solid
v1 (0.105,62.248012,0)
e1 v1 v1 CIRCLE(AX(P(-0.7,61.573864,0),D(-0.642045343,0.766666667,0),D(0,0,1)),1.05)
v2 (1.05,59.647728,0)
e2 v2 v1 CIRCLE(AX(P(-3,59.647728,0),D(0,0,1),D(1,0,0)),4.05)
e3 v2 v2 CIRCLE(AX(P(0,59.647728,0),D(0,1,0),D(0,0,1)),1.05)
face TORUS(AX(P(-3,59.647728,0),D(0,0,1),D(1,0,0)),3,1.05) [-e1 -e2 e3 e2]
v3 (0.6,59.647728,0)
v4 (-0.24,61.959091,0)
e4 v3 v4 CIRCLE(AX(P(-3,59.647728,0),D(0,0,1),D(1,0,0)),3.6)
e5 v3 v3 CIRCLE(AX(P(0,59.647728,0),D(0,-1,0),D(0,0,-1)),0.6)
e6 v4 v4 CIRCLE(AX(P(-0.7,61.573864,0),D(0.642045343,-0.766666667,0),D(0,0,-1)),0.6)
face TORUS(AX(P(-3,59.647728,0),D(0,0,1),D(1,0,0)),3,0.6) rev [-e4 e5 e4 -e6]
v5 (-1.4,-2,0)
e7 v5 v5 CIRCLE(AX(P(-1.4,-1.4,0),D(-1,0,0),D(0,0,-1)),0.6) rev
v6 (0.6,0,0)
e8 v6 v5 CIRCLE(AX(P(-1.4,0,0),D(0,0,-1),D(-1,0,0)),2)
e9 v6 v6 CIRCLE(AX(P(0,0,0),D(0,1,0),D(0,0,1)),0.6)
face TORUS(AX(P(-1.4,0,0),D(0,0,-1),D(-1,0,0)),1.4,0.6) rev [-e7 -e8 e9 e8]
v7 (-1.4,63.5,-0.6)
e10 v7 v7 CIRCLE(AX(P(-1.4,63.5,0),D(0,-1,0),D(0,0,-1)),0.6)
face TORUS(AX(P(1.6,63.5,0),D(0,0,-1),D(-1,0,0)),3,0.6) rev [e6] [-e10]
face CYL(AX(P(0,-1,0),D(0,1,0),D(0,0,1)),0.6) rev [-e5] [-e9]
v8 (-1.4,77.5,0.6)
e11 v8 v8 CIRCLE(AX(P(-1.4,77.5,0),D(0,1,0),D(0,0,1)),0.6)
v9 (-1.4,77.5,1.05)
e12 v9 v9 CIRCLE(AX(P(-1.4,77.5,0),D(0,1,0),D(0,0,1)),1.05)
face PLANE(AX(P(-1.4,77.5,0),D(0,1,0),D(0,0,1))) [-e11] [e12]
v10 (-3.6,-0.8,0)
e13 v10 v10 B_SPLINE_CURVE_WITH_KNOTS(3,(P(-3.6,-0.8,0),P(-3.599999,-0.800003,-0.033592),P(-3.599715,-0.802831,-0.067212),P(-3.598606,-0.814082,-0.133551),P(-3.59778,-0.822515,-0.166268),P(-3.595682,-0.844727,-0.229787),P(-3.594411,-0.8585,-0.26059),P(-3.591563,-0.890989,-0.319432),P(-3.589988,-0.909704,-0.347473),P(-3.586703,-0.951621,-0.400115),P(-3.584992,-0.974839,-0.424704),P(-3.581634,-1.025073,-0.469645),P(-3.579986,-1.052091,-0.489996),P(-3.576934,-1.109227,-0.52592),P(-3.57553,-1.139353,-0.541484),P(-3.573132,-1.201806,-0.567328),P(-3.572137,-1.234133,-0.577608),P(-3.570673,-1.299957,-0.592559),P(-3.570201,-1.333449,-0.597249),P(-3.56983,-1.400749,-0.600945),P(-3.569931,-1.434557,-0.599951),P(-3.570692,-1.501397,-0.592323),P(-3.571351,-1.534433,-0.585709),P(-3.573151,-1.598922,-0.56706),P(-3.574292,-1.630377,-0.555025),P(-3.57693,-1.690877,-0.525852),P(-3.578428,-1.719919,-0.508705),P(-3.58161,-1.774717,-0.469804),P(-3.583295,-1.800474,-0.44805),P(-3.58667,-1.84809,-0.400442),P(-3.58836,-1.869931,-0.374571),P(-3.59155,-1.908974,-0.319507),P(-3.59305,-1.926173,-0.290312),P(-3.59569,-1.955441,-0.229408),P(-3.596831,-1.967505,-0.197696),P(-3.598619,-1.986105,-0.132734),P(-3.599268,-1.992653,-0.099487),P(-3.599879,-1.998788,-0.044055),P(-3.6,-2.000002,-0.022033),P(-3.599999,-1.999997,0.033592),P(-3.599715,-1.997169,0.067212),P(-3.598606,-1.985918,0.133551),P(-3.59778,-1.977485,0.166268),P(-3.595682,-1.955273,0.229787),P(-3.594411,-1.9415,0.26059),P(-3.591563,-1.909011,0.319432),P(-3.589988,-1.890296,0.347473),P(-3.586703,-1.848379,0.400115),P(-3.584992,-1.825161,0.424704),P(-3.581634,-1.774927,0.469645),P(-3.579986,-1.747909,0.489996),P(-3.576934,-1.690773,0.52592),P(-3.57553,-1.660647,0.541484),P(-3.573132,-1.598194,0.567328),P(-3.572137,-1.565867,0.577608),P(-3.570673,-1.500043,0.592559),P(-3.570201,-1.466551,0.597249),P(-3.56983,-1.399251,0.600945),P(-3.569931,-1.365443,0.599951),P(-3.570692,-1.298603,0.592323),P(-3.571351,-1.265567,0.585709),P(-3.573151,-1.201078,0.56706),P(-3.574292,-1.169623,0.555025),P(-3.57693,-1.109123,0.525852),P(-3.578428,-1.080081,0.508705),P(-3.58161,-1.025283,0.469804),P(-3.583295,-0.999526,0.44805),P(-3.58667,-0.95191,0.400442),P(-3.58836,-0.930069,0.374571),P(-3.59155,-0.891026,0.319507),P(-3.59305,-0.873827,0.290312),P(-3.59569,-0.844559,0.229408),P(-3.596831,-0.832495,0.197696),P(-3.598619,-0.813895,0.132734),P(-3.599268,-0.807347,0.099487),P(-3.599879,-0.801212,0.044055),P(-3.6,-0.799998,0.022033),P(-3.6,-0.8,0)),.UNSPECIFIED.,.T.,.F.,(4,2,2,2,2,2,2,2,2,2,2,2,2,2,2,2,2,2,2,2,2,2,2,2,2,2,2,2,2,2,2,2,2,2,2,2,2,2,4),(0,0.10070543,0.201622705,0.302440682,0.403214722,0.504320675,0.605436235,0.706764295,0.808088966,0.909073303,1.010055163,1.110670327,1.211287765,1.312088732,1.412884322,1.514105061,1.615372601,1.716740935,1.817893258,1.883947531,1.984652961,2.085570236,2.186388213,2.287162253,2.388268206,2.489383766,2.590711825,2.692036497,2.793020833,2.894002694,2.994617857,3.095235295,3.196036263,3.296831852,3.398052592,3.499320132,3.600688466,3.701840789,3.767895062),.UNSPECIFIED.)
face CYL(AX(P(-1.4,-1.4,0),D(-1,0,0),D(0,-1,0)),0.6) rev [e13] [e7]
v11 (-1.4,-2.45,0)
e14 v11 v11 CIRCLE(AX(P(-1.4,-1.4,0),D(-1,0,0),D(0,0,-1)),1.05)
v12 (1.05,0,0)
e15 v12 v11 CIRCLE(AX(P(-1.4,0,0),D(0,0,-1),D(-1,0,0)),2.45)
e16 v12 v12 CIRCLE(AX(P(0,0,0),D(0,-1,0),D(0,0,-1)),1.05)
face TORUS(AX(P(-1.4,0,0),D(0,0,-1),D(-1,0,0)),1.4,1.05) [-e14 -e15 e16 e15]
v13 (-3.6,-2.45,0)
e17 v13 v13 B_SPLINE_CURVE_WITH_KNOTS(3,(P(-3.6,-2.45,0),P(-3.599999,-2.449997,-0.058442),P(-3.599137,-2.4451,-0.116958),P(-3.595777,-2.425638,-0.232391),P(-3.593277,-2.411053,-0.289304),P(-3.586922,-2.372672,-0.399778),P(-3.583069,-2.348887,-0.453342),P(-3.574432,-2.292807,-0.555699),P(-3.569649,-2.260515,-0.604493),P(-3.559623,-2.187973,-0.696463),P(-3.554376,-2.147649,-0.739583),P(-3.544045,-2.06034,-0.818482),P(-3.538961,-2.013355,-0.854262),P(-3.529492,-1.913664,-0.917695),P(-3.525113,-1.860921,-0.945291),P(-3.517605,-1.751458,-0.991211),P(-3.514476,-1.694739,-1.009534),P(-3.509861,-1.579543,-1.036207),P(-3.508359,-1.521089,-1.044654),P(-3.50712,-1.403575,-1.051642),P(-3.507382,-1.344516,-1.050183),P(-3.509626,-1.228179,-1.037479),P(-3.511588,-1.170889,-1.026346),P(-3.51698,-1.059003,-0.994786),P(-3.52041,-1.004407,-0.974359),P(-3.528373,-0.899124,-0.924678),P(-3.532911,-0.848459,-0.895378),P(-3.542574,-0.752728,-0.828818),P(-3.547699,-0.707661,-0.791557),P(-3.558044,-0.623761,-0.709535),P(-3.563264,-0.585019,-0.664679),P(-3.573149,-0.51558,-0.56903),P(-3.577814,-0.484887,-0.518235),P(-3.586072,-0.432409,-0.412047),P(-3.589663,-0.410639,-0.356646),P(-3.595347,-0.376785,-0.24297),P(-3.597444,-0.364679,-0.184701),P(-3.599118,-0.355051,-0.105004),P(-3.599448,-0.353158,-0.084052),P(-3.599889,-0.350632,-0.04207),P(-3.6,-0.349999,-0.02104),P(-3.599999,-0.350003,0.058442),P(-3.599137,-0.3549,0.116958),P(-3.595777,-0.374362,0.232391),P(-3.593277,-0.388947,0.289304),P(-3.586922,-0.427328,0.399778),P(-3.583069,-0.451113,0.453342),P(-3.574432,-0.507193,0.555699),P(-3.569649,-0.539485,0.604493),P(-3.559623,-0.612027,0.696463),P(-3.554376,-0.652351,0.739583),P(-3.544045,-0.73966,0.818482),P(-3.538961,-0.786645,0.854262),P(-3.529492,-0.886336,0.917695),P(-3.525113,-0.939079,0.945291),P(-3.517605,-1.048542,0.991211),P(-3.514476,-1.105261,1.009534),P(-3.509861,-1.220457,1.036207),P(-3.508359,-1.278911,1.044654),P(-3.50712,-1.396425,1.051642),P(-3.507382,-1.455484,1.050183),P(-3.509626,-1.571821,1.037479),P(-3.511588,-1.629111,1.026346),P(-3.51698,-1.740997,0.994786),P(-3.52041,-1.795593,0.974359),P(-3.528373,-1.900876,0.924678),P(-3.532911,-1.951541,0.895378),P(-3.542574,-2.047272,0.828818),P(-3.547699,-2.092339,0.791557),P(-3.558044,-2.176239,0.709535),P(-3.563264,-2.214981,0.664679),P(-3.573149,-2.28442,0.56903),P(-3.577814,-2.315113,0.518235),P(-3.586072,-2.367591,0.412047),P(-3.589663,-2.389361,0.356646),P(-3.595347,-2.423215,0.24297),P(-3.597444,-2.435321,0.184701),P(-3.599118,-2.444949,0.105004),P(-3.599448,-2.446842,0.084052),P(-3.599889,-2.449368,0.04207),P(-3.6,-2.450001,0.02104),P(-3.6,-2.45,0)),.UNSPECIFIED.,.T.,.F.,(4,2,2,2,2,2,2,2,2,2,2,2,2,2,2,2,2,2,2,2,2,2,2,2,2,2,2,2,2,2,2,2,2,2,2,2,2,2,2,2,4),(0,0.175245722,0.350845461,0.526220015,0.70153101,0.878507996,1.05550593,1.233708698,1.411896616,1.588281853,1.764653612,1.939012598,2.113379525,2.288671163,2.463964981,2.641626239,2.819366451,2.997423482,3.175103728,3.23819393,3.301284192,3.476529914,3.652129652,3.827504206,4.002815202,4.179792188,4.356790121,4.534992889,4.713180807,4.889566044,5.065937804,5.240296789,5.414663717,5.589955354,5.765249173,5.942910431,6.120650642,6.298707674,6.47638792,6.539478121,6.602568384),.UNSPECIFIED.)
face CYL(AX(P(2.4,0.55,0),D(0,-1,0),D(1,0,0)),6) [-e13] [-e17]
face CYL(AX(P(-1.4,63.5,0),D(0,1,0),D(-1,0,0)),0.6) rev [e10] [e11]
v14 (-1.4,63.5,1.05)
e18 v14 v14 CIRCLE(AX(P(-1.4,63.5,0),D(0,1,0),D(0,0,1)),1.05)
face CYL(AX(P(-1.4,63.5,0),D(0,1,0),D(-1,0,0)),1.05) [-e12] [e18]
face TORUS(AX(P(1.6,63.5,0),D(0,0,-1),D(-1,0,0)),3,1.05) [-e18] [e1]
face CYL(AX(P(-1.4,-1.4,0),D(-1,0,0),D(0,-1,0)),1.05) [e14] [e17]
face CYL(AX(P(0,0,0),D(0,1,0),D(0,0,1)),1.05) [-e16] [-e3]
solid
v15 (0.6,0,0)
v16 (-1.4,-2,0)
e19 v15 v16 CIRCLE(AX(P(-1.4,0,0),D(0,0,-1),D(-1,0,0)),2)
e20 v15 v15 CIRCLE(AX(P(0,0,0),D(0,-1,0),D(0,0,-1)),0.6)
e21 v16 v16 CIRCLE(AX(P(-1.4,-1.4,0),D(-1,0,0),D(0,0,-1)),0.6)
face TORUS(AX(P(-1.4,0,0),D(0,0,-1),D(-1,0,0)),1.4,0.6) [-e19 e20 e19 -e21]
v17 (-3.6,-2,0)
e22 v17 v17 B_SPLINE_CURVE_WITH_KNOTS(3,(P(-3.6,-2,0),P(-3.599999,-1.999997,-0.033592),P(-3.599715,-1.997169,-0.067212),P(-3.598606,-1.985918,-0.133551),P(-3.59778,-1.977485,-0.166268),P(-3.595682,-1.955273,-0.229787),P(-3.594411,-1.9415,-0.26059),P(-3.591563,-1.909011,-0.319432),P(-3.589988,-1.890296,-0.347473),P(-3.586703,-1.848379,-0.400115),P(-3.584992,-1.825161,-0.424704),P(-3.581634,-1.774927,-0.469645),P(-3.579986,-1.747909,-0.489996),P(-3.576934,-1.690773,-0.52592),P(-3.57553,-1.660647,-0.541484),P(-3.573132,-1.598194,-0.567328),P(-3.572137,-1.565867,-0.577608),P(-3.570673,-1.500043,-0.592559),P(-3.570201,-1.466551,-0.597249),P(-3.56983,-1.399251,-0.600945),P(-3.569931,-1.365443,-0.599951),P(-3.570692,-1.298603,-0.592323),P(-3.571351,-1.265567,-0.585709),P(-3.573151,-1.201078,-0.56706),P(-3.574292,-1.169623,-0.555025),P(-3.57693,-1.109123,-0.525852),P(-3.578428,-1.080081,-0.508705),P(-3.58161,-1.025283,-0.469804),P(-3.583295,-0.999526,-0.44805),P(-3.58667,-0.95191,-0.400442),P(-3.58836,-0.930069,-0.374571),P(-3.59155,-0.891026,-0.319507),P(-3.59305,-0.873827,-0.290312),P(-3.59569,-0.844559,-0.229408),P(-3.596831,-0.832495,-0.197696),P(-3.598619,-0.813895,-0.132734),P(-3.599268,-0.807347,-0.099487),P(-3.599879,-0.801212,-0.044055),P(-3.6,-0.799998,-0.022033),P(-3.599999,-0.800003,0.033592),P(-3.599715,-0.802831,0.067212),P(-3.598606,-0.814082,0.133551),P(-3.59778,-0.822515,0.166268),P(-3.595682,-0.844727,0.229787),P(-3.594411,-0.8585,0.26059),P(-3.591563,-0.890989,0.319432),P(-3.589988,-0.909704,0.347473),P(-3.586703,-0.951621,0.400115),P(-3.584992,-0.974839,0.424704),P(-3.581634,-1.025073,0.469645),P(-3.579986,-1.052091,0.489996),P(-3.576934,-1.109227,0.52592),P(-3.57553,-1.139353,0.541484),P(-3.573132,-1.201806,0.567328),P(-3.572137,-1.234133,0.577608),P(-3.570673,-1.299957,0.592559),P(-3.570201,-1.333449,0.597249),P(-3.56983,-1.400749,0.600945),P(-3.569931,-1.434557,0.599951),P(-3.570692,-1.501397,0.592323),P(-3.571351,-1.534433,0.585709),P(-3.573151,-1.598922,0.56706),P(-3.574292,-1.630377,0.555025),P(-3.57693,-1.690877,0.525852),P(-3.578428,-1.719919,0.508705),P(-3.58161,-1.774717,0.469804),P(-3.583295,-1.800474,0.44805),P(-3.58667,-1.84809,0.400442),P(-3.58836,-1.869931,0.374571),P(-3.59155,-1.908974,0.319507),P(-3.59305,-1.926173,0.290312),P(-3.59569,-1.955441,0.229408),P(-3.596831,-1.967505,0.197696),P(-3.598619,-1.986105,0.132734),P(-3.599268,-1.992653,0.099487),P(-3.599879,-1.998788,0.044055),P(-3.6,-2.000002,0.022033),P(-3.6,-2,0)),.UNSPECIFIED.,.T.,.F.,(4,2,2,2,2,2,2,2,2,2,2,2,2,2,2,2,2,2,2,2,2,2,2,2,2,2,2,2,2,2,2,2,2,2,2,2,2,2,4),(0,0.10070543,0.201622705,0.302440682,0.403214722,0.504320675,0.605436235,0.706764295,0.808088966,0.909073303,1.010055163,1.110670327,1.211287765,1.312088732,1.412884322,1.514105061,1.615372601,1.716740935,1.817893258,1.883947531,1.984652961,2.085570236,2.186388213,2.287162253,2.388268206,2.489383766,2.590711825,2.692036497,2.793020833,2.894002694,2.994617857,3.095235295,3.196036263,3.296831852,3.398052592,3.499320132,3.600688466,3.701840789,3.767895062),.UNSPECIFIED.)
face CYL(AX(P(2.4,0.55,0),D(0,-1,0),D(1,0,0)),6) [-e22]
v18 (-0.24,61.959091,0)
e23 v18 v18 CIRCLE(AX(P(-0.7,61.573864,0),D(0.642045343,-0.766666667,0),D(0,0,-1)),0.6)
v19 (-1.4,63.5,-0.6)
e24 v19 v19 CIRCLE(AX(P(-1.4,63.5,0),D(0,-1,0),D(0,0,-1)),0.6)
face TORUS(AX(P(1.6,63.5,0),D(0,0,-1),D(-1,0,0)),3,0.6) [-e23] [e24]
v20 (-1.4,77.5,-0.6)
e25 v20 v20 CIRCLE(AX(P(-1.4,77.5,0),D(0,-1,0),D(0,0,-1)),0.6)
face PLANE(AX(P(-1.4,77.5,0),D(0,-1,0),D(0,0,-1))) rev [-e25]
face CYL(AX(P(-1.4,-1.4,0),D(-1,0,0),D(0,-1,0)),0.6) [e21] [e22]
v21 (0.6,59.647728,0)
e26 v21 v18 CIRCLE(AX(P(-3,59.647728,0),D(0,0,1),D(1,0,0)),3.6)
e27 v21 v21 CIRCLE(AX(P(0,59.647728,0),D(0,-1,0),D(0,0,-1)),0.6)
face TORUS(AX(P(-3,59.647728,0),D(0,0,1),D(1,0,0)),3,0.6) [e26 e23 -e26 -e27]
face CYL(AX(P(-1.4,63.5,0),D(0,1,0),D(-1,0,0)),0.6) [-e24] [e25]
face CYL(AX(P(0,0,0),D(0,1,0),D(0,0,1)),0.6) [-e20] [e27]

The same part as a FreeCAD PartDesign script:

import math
import FreeCAD as App
import Part
import Sketcher

doc = App.newDocument("Part")
body = doc.addObject("PartDesign::Body", "Body")

sketch1 = body.newObject("Sketcher::SketchObject", "Sketch")
sketch1.AttachmentSupport = (doc.getObject("XZ_Plane"), [""])
sketch1.MapMode = "FlatFace"
sketch1.addGeometry(Part.Circle(App.Vector(0, 0, 0), App.Vector(0, 0, 1), 1.05), False)
sketch1.addConstraint([
    Sketcher.Constraint("Coincident", 0, 3, -1, 1),
    Sketcher.Constraint("Diameter", 0, 2.1),
])

sketch2 = body.newObject("Sketcher::SketchObject", "Sketch001")
sketch2.AttachmentSupport = (doc.getObject("XY_Plane"), [""])
sketch2.MapMode = "FlatFace"
sketch2.addGeometry([
    Part.LineSegment(App.Vector(0, 0, 0), App.Vector(0, 59.647728, 0)),
    Part.ArcOfCircle(Part.Circle(App.Vector(-3, 59.647728, 0), App.Vector(0, 0, 1), 3), math.radians(0), math.radians(39.944505)),
    Part.ArcOfCircle(Part.Circle(App.Vector(1.6, 63.5, 0), App.Vector(0, 0, 1), 3), math.radians(180), math.radians(219.944505)),
    Part.LineSegment(App.Vector(-1.4, 63.5, 0), App.Vector(-1.4, 77.5, 0)),
], False)
sketch2.addConstraint([
    Sketcher.Constraint("Tangent", 0, 2, 1, 1),
    Sketcher.Constraint("Tangent", 1, 2, 2, 2),
    Sketcher.Constraint("Tangent", 2, 1, 3, 1),
    Sketcher.Constraint("Vertical", 0),
    Sketcher.Constraint("Vertical", 3),
    Sketcher.Constraint("Coincident", 0, 1, -1, 1),
    Sketcher.Constraint("Equal", 1, 2),
    Sketcher.Constraint("Radius", 1, 3.0),
    Sketcher.Constraint("DistanceY", 3, 1, 3, 2, 14.0),
    Sketcher.Constraint("DistanceX", -1, 1, 2, 3, 1.6),
    Sketcher.Constraint("DistanceY", -1, 1, 2, 3, 63.5),
])
doc.recompute()

additivepipe = body.newObject("PartDesign::AdditivePipe", "AdditivePipe")
additivepipe.Profile = sketch1
additivepipe.Spine = (sketch2, ["Edge1", "Edge2", "Edge3", "Edge4"])

sketch3 = body.newObject("Sketcher::SketchObject", "Sketch002")
sketch3.AttachmentSupport = (doc.getObject("XZ_Plane"), [""])
sketch3.MapMode = "FlatFace"
sketch3.addGeometry(Part.Circle(App.Vector(0, 0, 0), App.Vector(0, 0, 1), 0.6), False)
sketch3.addConstraint([
    Sketcher.Constraint("Coincident", 0, 3, -1, 1),
    Sketcher.Constraint("Diameter", 0, 1.2),
])

sketch4 = body.newObject("Sketcher::SketchObject", "Sketch003")
sketch4.AttachmentSupport = (doc.getObject("XY_Plane"), [""])
sketch4.MapMode = "FlatFace"
sketch4.addGeometry([
    Part.LineSegment(App.Vector(0, 0, 0), App.Vector(0, 59.647728, 0)),
    Part.ArcOfCircle(Part.Circle(App.Vector(-3, 59.647728, 0), App.Vector(0, 0, 1), 3), math.radians(0), math.radians(39.944505)),
    Part.ArcOfCircle(Part.Circle(App.Vector(1.6, 63.5, 0), App.Vector(0, 0, 1), 3), math.radians(180), math.radians(219.944505)),
    Part.LineSegment(App.Vector(-1.4, 63.5, 0), App.Vector(-1.4, 77.5, 0)),
], False)
sketch4.addConstraint([
    Sketcher.Constraint("Tangent", 0, 2, 1, 1),
    Sketcher.Constraint("Tangent", 1, 2, 2, 2),
    Sketcher.Constraint("Tangent", 2, 1, 3, 1),
    Sketcher.Constraint("Vertical", 0),
    Sketcher.Constraint("Vertical", 3),
    Sketcher.Constraint("Coincident", 0, 1, -1, 1),
    Sketcher.Constraint("Equal", 1, 2),
    Sketcher.Constraint("Radius", 1, 3.0),
    Sketcher.Constraint("DistanceY", 3, 1, 3, 2, 14.0),
    Sketcher.Constraint("DistanceX", -1, 1, 2, 3, 1.6),
    Sketcher.Constraint("DistanceY", -1, 1, 2, 3, 63.5),
])
doc.recompute()

subtractivepipe = body.newObject("PartDesign::SubtractivePipe", "SubtractivePipe")
subtractivepipe.Profile = sketch3
subtractivepipe.Spine = (sketch4, ["Edge1", "Edge2", "Edge3", "Edge4"])

sketch5 = body.newObject("Sketcher::SketchObject", "Sketch004")
sketch5.AttachmentSupport = (doc.getObject("XZ_Plane"), [""])
sketch5.MapMode = "FlatFace"
sketch5.addGeometry([
    Part.Circle(App.Vector(0, 0, 0), App.Vector(0, 0, 1), 1.05),
    Part.Circle(App.Vector(0, 0, 0), App.Vector(0, 0, 1), 0.6),
], False)
sketch5.addConstraint([
    Sketcher.Constraint("Coincident", 0, 3, -1, 1),
    Sketcher.Constraint("Coincident", 1, 3, -1, 1),
    Sketcher.Constraint("Diameter", 0, 2.1),
    Sketcher.Constraint("Diameter", 1, 1.2),
])

sketch6 = body.newObject("Sketcher::SketchObject", "Sketch005")
sketch6.AttachmentSupport = (doc.getObject("XY_Plane"), [""])
sketch6.MapMode = "FlatFace"
sketch6.addGeometry([
    Part.LineSegment(App.Vector(-3.6, -1.4, 0), App.Vector(-1.4, -1.4, 0)),
    Part.ArcOfCircle(Part.Circle(App.Vector(-1.4, 0, 0), App.Vector(0, 0, 1), 1.4), math.radians(-90), math.radians(0)),
], False)
sketch6.addConstraint([
    Sketcher.Constraint("Tangent", 0, 2, 1, 1),
    Sketcher.Constraint("Horizontal", 0),
    Sketcher.Constraint("Coincident", 1, 2, -1, 1),
    Sketcher.Constraint("PointOnObject", 1, 3, -1),
    Sketcher.Constraint("Radius", 1, 1.4),
    Sketcher.Constraint("DistanceX", 0, 1, 0, 2, 2.2),
])
doc.recompute()

additivepipe2 = body.newObject("PartDesign::AdditivePipe", "AdditivePipe001")
additivepipe2.Profile = sketch5
additivepipe2.Spine = (sketch6, ["Edge1", "Edge2"])
body2 = doc.addObject("PartDesign::Body", "Body001")

sketch7 = body2.newObject("Sketcher::SketchObject", "Sketch006")
sketch7.AttachmentSupport = (doc.getObject("XZ_Plane001"), [""])
sketch7.MapMode = "FlatFace"
sketch7.addGeometry(Part.Circle(App.Vector(0, 0, 0), App.Vector(0, 0, 1), 0.6), False)
sketch7.addConstraint([
    Sketcher.Constraint("Coincident", 0, 3, -1, 1),
    Sketcher.Constraint("Diameter", 0, 1.2),
])

sketch8 = body2.newObject("Sketcher::SketchObject", "Sketch007")
sketch8.AttachmentSupport = (doc.getObject("XY_Plane001"), [""])
sketch8.MapMode = "FlatFace"
sketch8.addGeometry([
    Part.LineSegment(App.Vector(0, 0, 0), App.Vector(0, 59.647728, 0)),
    Part.ArcOfCircle(Part.Circle(App.Vector(-3, 59.647728, 0), App.Vector(0, 0, 1), 3), math.radians(0), math.radians(39.944505)),
    Part.ArcOfCircle(Part.Circle(App.Vector(1.6, 63.5, 0), App.Vector(0, 0, 1), 3), math.radians(180), math.radians(219.944505)),
    Part.LineSegment(App.Vector(-1.4, 63.5, 0), App.Vector(-1.4, 77.5, 0)),
], False)
sketch8.addConstraint([
    Sketcher.Constraint("Tangent", 0, 2, 1, 1),
    Sketcher.Constraint("Tangent", 1, 2, 2, 2),
    Sketcher.Constraint("Tangent", 2, 1, 3, 1),
    Sketcher.Constraint("Vertical", 0),
    Sketcher.Constraint("Vertical", 3),
    Sketcher.Constraint("Coincident", 0, 1, -1, 1),
    Sketcher.Constraint("Equal", 1, 2),
    Sketcher.Constraint("Radius", 1, 3.0),
    Sketcher.Constraint("DistanceY", 3, 1, 3, 2, 14.0),
    Sketcher.Constraint("DistanceX", -1, 1, 2, 3, 1.6),
    Sketcher.Constraint("DistanceY", -1, 1, 2, 3, 63.5),
])
doc.recompute()

additivepipe3 = body2.newObject("PartDesign::AdditivePipe", "AdditivePipe002")
additivepipe3.Profile = sketch7
additivepipe3.Spine = (sketch8, ["Edge1", "Edge2", "Edge3", "Edge4"])

sketch9 = body2.newObject("Sketcher::SketchObject", "Sketch008")
sketch9.AttachmentSupport = (doc.getObject("XZ_Plane001"), [""])
sketch9.MapMode = "FlatFace"
sketch9.addGeometry(Part.Circle(App.Vector(0, 0, 0), App.Vector(0, 0, 1), 0.6), False)
sketch9.addConstraint([
    Sketcher.Constraint("Coincident", 0, 3, -1, 1),
    Sketcher.Constraint("Diameter", 0, 1.2),
])

sketch10 = body2.newObject("Sketcher::SketchObject", "Sketch009")
sketch10.AttachmentSupport = (doc.getObject("XY_Plane001"), [""])
sketch10.MapMode = "FlatFace"
sketch10.addGeometry([
    Part.LineSegment(App.Vector(-3.6, -1.4, 0), App.Vector(-1.4, -1.4, 0)),
    Part.ArcOfCircle(Part.Circle(App.Vector(-1.4, 0, 0), App.Vector(0, 0, 1), 1.4), math.radians(-90), math.radians(0)),
], False)
sketch10.addConstraint([
    Sketcher.Constraint("Tangent", 0, 2, 1, 1),
    Sketcher.Constraint("Horizontal", 0),
    Sketcher.Constraint("Coincident", 1, 2, -1, 1),
    Sketcher.Constraint("PointOnObject", 1, 3, -1),
    Sketcher.Constraint("Radius", 1, 1.4),
    Sketcher.Constraint("DistanceX", 0, 1, 0, 2, 2.2),
])
doc.recompute()

additivepipe4 = body2.newObject("PartDesign::AdditivePipe", "AdditivePipe003")
additivepipe4.Profile = sketch9
additivepipe4.Spine = (sketch10, ["Edge1", "Edge2"])
body3 = doc.addObject("PartDesign::Body", "Body002")

sketch11 = body3.newObject("Sketcher::SketchObject", "Sketch010")
sketch11.AttachmentSupport = (doc.getObject("XZ_Plane002"), [""])
sketch11.MapMode = "FlatFace"
sketch11.AttachmentOffset = App.Placement(App.Vector(0, 0, 2.45), App.Rotation())
sketch11.addGeometry([
    Part.ArcOfCircle(Part.Circle(App.Vector(2.4, 0, 0), App.Vector(0, 0, 1), 6), math.radians(180), math.radians(190.078658)),
    Part.LineSegment(App.Vector(-3.6, 0, 0), App.Vector(-3.6, -1.05, 0)),
    Part.LineSegment(App.Vector(-3.6, -1.05, 0), App.Vector(-3.507411, -1.05, 0)),
], False)
sketch11.addConstraint([
    Sketcher.Constraint("Tangent", 0, 1, 1, 1),
    Sketcher.Constraint("Coincident", 1, 2, 2, 1),
    Sketcher.Constraint("Coincident", 2, 2, 0, 2),
    Sketcher.Constraint("Vertical", 1),
    Sketcher.Constraint("Horizontal", 2),
    Sketcher.Constraint("PointOnObject", 0, 3, -1),
    Sketcher.Constraint("Radius", 0, 6.0),
    Sketcher.Constraint("DistanceY", 1, 2, 1, 1, 1.05),
    Sketcher.Constraint("DistanceX", -1, 1, 0, 3, 2.4),
])
pad1 = body3.newObject("PartDesign::Pad", "Pad")
pad1.Profile = sketch11
pad1.Length = 3
pad1.Reversed = True
doc.recompute()

body4 = doc.addObject("PartDesign::Body", "Body003")
body4.BaseFeature = body3
boolean = body.newObject("PartDesign::Boolean", "Boolean")
boolean.Type = "Cut"
boolean.addObjects([body4])
doc.recompute()

boolean2 = body2.newObject("PartDesign::Boolean", "Boolean001")
boolean2.Type = "Cut"
boolean2.addObjects([body3])
body5 = doc.addObject("PartDesign::Body", "Body004")

sketch12 = body5.newObject("Sketcher::SketchObject", "Sketch011")
sketch12.AttachmentSupport = (doc.getObject("XZ_Plane004"), [""])
sketch12.MapMode = "FlatFace"
sketch12.AttachmentOffset = App.Placement(App.Vector(0, 0, 2.45), App.Rotation())
sketch12.addGeometry([
    Part.LineSegment(App.Vector(-3.507411, 1.05, 0), App.Vector(-3.6, 1.05, 0)),
    Part.LineSegment(App.Vector(-3.6, 1.05, 0), App.Vector(-3.6, 0, 0)),
    Part.ArcOfCircle(Part.Circle(App.Vector(2.4, 0, 0), App.Vector(0, 0, 1), 6), math.radians(169.921342), math.radians(180)),
], False)
sketch12.addConstraint([
    Sketcher.Constraint("Coincident", 0, 2, 1, 1),
    Sketcher.Constraint("Tangent", 1, 2, 2, 2),
    Sketcher.Constraint("Coincident", 2, 1, 0, 1),
    Sketcher.Constraint("Horizontal", 0),
    Sketcher.Constraint("Vertical", 1),
    Sketcher.Constraint("PointOnObject", 2, 3, -1),
    Sketcher.Constraint("Radius", 2, 6.0),
    Sketcher.Constraint("DistanceY", 1, 2, 1, 1, 1.05),
    Sketcher.Constraint("DistanceX", -1, 1, 2, 3, 2.4),
])
pad2 = body5.newObject("PartDesign::Pad", "Pad001")
pad2.Profile = sketch12
pad2.Length = 3
pad2.Reversed = True
doc.recompute()

body6 = doc.addObject("PartDesign::Body", "Body005")
body6.BaseFeature = body5
boolean3 = body.newObject("PartDesign::Boolean", "Boolean002")
boolean3.Type = "Cut"
boolean3.addObjects([body6])
doc.recompute()

boolean4 = body2.newObject("PartDesign::Boolean", "Boolean003")
boolean4.Type = "Cut"
boolean4.addObjects([body5])

doc.recompute()
